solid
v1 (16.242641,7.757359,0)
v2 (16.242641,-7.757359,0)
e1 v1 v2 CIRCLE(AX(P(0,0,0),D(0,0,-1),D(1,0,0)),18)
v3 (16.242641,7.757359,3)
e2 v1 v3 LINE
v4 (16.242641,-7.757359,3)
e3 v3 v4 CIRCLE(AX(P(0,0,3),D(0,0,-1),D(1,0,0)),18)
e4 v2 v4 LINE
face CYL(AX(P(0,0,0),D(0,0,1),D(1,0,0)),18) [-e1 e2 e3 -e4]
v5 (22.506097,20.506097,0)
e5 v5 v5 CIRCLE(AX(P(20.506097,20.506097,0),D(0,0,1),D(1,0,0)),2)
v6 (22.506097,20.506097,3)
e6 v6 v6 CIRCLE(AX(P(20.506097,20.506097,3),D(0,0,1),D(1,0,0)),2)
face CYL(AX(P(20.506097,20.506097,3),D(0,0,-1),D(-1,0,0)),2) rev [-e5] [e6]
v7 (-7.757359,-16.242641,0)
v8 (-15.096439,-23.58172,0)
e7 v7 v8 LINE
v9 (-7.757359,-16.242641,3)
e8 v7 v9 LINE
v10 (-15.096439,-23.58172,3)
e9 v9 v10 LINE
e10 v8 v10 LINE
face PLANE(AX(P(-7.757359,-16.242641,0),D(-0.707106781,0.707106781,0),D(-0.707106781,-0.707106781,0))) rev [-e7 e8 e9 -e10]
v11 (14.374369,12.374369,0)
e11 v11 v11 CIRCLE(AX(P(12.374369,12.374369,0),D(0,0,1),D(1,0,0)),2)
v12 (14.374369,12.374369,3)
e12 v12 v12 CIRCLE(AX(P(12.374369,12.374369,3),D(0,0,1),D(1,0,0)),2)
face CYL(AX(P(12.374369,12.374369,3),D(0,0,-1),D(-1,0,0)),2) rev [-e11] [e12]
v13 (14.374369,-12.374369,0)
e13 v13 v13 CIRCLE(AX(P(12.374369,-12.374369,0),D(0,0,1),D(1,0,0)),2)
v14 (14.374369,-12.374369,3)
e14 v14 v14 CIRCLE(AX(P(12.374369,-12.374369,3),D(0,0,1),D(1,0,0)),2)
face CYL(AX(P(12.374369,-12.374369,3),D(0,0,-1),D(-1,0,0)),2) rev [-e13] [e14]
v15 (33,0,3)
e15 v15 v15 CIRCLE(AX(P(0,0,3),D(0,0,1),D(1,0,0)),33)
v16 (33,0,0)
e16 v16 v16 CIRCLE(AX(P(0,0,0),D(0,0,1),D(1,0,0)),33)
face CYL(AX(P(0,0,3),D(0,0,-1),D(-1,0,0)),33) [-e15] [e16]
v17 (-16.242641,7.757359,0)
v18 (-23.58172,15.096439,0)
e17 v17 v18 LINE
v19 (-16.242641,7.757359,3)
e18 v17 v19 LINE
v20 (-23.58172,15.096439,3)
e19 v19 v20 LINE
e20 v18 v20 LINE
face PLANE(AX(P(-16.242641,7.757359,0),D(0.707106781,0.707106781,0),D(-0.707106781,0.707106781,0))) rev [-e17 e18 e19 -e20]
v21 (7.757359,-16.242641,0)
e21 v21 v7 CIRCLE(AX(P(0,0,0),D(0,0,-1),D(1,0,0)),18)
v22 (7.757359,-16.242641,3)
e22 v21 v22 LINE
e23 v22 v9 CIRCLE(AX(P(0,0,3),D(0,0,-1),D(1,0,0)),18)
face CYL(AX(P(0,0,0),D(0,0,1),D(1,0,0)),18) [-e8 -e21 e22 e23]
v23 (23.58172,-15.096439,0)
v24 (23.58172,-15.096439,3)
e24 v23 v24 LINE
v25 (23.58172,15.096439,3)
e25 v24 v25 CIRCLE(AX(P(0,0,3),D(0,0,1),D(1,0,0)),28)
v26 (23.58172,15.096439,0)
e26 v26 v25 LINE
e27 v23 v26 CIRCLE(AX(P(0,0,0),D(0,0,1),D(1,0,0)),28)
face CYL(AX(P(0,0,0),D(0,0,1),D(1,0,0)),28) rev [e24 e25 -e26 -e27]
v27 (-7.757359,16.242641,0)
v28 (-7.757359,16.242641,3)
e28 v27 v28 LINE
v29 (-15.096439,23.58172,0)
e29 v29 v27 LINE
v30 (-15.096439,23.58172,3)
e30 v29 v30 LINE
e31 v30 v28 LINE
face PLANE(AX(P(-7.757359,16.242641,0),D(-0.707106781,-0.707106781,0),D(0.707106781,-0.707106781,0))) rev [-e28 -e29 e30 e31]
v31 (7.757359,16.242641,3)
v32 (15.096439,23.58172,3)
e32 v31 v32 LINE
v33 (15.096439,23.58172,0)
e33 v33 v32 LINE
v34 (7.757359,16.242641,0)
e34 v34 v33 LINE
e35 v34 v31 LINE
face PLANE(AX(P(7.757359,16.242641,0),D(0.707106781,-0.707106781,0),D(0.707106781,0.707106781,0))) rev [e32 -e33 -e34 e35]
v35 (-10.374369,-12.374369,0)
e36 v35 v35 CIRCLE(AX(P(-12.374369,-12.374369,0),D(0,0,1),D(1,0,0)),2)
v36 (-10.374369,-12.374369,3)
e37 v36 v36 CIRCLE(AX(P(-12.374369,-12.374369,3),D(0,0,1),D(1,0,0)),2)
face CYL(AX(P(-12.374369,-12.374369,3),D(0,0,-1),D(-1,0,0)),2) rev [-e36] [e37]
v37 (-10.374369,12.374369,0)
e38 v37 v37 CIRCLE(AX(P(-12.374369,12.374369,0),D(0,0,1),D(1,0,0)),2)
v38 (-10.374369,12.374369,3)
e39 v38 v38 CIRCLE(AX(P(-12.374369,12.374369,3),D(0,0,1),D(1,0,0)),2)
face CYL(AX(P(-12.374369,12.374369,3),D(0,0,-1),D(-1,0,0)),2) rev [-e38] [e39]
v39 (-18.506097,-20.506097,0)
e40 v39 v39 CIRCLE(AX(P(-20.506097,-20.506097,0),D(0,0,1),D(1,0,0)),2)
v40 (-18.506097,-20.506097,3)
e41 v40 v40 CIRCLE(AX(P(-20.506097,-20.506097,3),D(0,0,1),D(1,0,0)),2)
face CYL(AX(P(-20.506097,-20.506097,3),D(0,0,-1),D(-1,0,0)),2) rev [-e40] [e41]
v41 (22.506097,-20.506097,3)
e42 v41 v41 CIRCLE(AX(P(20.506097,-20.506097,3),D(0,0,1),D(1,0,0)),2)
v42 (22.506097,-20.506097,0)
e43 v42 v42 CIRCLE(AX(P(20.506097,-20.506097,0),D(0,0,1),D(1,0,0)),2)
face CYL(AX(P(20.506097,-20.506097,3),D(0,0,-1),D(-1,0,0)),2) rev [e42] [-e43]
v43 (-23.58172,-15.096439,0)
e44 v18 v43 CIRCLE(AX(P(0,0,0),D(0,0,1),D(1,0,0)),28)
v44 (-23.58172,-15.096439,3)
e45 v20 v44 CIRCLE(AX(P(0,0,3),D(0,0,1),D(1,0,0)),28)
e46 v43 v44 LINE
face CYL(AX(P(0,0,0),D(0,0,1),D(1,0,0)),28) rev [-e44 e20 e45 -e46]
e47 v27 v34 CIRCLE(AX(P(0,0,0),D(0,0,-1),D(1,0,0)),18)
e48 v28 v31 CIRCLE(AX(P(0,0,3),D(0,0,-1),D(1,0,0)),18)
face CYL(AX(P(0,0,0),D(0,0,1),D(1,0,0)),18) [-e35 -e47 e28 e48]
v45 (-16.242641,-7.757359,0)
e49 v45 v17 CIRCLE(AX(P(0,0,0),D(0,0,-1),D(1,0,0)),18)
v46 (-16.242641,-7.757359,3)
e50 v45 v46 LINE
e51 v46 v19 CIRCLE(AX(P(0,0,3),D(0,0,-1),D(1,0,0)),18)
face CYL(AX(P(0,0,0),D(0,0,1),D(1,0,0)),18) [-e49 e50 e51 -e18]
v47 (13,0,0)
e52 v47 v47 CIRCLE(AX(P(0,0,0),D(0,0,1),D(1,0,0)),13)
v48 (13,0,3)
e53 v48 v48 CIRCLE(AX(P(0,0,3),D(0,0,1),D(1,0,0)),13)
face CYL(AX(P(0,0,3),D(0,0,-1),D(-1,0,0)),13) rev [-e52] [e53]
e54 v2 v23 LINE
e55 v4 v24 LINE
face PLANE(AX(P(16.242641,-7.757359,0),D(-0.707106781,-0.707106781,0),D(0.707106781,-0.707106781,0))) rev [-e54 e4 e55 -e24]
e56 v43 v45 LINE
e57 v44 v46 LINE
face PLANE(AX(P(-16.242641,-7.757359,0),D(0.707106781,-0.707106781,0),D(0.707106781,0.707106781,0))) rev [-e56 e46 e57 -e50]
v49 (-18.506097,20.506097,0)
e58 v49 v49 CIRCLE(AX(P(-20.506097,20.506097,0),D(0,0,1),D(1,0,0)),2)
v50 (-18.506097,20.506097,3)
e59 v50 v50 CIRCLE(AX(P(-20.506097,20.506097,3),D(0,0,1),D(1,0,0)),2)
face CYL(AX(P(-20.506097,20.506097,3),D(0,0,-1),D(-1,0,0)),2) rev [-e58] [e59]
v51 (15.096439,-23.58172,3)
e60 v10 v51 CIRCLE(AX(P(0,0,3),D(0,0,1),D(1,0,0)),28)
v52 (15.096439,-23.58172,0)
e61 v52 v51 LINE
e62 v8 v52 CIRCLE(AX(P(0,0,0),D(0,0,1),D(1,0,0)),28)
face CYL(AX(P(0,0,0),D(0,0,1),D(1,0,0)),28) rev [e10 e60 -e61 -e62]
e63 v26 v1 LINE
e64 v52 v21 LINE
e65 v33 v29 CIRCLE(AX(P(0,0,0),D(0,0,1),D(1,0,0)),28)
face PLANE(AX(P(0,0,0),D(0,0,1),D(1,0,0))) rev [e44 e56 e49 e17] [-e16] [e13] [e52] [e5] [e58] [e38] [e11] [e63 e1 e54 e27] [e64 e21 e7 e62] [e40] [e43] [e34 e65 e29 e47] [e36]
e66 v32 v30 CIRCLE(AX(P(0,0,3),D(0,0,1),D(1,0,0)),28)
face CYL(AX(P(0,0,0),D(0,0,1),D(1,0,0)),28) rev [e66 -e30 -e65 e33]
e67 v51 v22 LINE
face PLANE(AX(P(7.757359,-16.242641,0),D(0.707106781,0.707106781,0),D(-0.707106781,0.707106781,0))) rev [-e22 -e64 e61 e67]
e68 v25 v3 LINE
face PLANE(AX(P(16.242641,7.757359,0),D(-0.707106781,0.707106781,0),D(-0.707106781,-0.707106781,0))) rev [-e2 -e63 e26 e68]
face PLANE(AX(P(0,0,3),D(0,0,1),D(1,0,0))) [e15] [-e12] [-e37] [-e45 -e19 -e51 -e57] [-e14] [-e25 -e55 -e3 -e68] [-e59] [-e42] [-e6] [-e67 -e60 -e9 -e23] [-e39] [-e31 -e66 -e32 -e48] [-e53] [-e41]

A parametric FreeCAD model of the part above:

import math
import FreeCAD as App
import Part
import Sketcher
Q = App.Units.Quantity

doc = App.newDocument("Part")
body = doc.addObject("PartDesign::Body", "Body")

# Sketch on XY plane
sketch1 = body.newObject("Sketcher::SketchObject", "Sketch")
sketch1.AttachmentSupport = (doc.getObject("XY_Plane"), [""])
sketch1.MapMode = "FlatFace"
sketch1.addGeometry([
    Part.Circle(App.Vector(0, 0, 0), App.Vector(0, 0, 1), 33),  # 0
    Part.Circle(App.Vector(-20.5, -20.5, 0), App.Vector(0, 0, 1), 2),  # 1
    Part.Circle(App.Vector(-12.4, -12.4, 0), App.Vector(0, 0, 1), 2),  # 2
    Part.Circle(App.Vector(0, 0, 0), App.Vector(0, 0, 1), 13),  # 3
    Part.Circle(App.Vector(20.5, -20.5, 0), App.Vector(0, 0, 1), 2),  # 4
    Part.Circle(App.Vector(12.4, -12.4, 0), App.Vector(0, 0, 1), 2),  # 5
    Part.Circle(App.Vector(-12.4, 12.4, 0), App.Vector(0, 0, 1), 2),  # 6
    Part.Circle(App.Vector(-20.5, 20.5, 0), App.Vector(0, 0, 1), 2),  # 7
    Part.Circle(App.Vector(12.4, 12.4, 0), App.Vector(0, 0, 1), 2),  # 8
    Part.Circle(App.Vector(20.5, 20.5, 0), App.Vector(0, 0, 1), 2),  # 9
], False)
sketch1.addConstraint([
    Sketcher.Constraint("Coincident", 0, 3, -1, 1),
    Sketcher.Constraint("Coincident", 3, 3, -1, 1),
    Sketcher.Constraint("Equal", 1, 2),
    Sketcher.Constraint("Equal", 2, 4),
    Sketcher.Constraint("Equal", 4, 5),
    Sketcher.Constraint("Equal", 5, 6),
    Sketcher.Constraint("Equal", 6, 7),
    Sketcher.Constraint("Equal", 7, 8),
    Sketcher.Constraint("Equal", 8, 9),
    Sketcher.Constraint("Symmetric", 5, 3, 6, 3, -1, 1),
    Sketcher.Constraint("Symmetric", 4, 3, 7, 3, -1, 1),
    Sketcher.Constraint("Symmetric", 2, 3, 8, 3, -1, 1),
    Sketcher.Constraint("Symmetric", 1, 3, 9, 3, -1, 1),
    Sketcher.Constraint("Symmetric", 1, 3, 4, 3, -2),
    Sketcher.Constraint("Symmetric", 2, 3, 5, 3, -2),
    Sketcher.Constraint("Diameter", 0, Q("66 mm")),
    Sketcher.Constraint("Diameter", 1, Q("4 mm")),
    Sketcher.Constraint("Diameter", 3, Q("26 mm")),
    Sketcher.Constraint("DistanceX", 2, 3, -1, 1, Q("12.374369 mm")),
    Sketcher.Constraint("DistanceY", 2, 3, -1, 1, Q("12.374369 mm")),
    Sketcher.Constraint("DistanceX", 1, 3, -1, 1, Q("20.506097 mm")),
    Sketcher.Constraint("DistanceY", 1, 3, -1, 1, Q("20.506097 mm")),
])
pad1 = body.newObject("PartDesign::Pad", "Pad")
pad1.Profile = sketch1
pad1.Length = 3

# Sketch on XY plane
sketch2 = body.newObject("Sketcher::SketchObject", "Sketch001")
sketch2.AttachmentSupport = (doc.getObject("XY_Plane"), [""])
sketch2.MapMode = "FlatFace"
sketch2.AttachmentOffset = App.Placement(App.Vector(0, 0, 3), App.Rotation())
sketch2.addGeometry([
    Part.LineSegment(App.Vector(-15, 24, 0), App.Vector(-8, 16, 0)),  # 0
    Part.ArcOfCircle(Part.Circle(App.Vector(0, 0, 0), App.Vector(0, 0, 1), 18), math.radians(64), math.radians(116)),  # 1
    Part.LineSegment(App.Vector(8, 16, 0), App.Vector(15, 24, 0)),  # 2
    Part.ArcOfCircle(Part.Circle(App.Vector(0, 0, 0), App.Vector(0, 0, 1), 28), math.radians(57), math.radians(123)),  # 3
    Part.LineSegment(App.Vector(24, 15, 0), App.Vector(16, 8, 0)),  # 4
    Part.ArcOfCircle(Part.Circle(App.Vector(0, 0, 0), App.Vector(0, 0, 1), 18), math.radians(-26), math.radians(26)),  # 5
    Part.LineSegment(App.Vector(16, -8, 0), App.Vector(24, -15, 0)),  # 6
    Part.ArcOfCircle(Part.Circle(App.Vector(0, 0, 0), App.Vector(0, 0, 1), 28), math.radians(-33), math.radians(33)),  # 7
    Part.LineSegment(App.Vector(15, -24, 0), App.Vector(8, -16, 0)),  # 8
    Part.ArcOfCircle(Part.Circle(App.Vector(0, 0, 0), App.Vector(0, 0, 1), 18), math.radians(-116), math.radians(-64)),  # 9
    Part.LineSegment(App.Vector(-8, -16, 0), App.Vector(-15, -24, 0)),  # 10
    Part.ArcOfCircle(Part.Circle(App.Vector(0, 0, 0), App.Vector(0, 0, 1), 28), math.radians(-123), math.radians(-57)),  # 11
    Part.LineSegment(App.Vector(-24, -15, 0), App.Vector(-16, -8, 0)),  # 12
    Part.ArcOfCircle(Part.Circle(App.Vector(0, 0, 0), App.Vector(0, 0, 1), 18), math.radians(154), math.radians(206)),  # 13
    Part.LineSegment(App.Vector(-16, 8, 0), App.Vector(-24, 15, 0)),  # 14
    Part.ArcOfCircle(Part.Circle(App.Vector(0, 0, 0), App.Vector(0, 0, 1), 28), math.radians(147), math.radians(213)),  # 15
], False)
sketch2.addConstraint([
    Sketcher.Constraint("Coincident", 0, 2, 1, 2),
    Sketcher.Constraint("Coincident", 1, 1, 2, 1),
    Sketcher.Constraint("Coincident", 2, 2, 3, 1),
    Sketcher.Constraint("Coincident", 3, 2, 0, 1),
    Sketcher.Constraint("Coincident", 4, 2, 5, 2),
    Sketcher.Constraint("Coincident", 5, 1, 6, 1),
    Sketcher.Constraint("Coincident", 6, 2, 7, 1),
    Sketcher.Constraint("Coincident", 7, 2, 4, 1),
    Sketcher.Constraint("Coincident", 8, 2, 9, 2),
    Sketcher.Constraint("Coincident", 9, 1, 10, 1),
    Sketcher.Constraint("Coincident", 10, 2, 11, 1),
    Sketcher.Constraint("Coincident", 11, 2, 8, 1),
    Sketcher.Constraint("Coincident", 12, 2, 13, 2),
    Sketcher.Constraint("Coincident", 13, 1, 14, 1),
    Sketcher.Constraint("Coincident", 14, 2, 15, 1),
    Sketcher.Constraint("Coincident", 15, 2, 12, 1),
    Sketcher.Constraint("Coincident", 1, 3, -1, 1),
    Sketcher.Constraint("Coincident", 3, 3, -1, 1),
    Sketcher.Constraint("Coincident", 5, 3, -1, 1),
    Sketcher.Constraint("Coincident", 7, 3, -1, 1),
    Sketcher.Constraint("Coincident", 9, 3, -1, 1),
    Sketcher.Constraint("Coincident", 11, 3, -1, 1),
    Sketcher.Constraint("Coincident", 13, 3, -1, 1),
    Sketcher.Constraint("Coincident", 15, 3, -1, 1),
    Sketcher.Constraint("Equal", 1, 5),
    Sketcher.Constraint("Equal", 3, 7),
    Sketcher.Constraint("Equal", 5, 9),
    Sketcher.Constraint("Equal", 7, 11),
    Sketcher.Constraint("Equal", 9, 13),
    Sketcher.Constraint("Equal", 11, 15),
    Sketcher.Constraint("Perpendicular", 0, 2),
    Sketcher.Constraint("Parallel", 2, 4),
    Sketcher.Constraint("Perpendicular", 4, 6),
    Sketcher.Constraint("Parallel", 6, 8),
    Sketcher.Constraint("Perpendicular", 8, 10),
    Sketcher.Constraint("Parallel", 10, 12),
    Sketcher.Constraint("Perpendicular", 12, 14),
    Sketcher.Constraint("Horizontal", 0, 2, 1, 1),
    Sketcher.Constraint("Horizontal", 2, 2, 3, 2),
    Sketcher.Constraint("Horizontal", 8, 2, 9, 1),
    Sketcher.Constraint("Horizontal", 5, 1, 12, 2),
    Sketcher.Constraint("Horizontal", 4, 2, 13, 1),
    Sketcher.Constraint("Vertical", 4, 2, 5, 1),
    Sketcher.Constraint("Vertical", 1, 1, 8, 2),
    Sketcher.Constraint("Equal", 2, 4),
    Sketcher.Constraint("Radius", 1, Q("18 mm")),
    Sketcher.Constraint("Radius", 3, Q("28 mm")),
    Sketcher.Constraint("DistanceX", 0, 2, 2, 2, Q("22.853798 mm")),
])
pocket1 = body.newObject("PartDesign::Pocket", "Pocket")
pocket1.Profile = sketch2
pocket1.Type = "ThroughAll"

doc.recompute()
